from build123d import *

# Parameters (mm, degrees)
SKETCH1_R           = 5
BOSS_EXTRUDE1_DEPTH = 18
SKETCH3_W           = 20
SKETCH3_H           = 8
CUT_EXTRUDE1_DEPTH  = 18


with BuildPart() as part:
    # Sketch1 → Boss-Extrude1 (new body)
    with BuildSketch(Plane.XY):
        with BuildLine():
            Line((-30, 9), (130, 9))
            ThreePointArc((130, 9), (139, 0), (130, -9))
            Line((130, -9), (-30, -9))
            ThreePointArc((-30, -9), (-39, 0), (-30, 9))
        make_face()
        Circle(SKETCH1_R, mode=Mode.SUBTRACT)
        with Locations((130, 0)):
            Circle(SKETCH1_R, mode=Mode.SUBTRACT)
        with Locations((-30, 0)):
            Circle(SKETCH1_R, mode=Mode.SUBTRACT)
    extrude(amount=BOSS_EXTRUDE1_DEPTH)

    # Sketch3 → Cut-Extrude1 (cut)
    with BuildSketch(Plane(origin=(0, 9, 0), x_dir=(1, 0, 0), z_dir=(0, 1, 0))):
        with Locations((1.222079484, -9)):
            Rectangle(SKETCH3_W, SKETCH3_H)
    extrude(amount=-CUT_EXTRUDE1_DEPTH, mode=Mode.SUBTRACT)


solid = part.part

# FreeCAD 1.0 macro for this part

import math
import FreeCAD as App
import Part
import Sketcher
Q = App.Units.Quantity

doc = App.newDocument("Part")
params = doc.addObject("Spreadsheet::Sheet", "Params")
for row, (alias, value) in enumerate([
    ("sketch1_diameter", "10 mm"),
    ("sketch1_radius", "9 mm"),
    ("sketch1_width", "160 mm"),
    ("pad1_length", "18 mm"),
    ("sketch2_width", "20 mm"),
    ("sketch2_height", "8 mm"),
    ("pocket1_length", "18 mm"),
], start=1):
    params.set(f"A{row}", alias)
    params.set(f"B{row}", "=" + value)
    params.setAlias(f"B{row}", alias)

body = doc.addObject("PartDesign::Body", "Body")

sketch1 = body.newObject("Sketcher::SketchObject", "Sketch")
sketch1.AttachmentSupport = (doc.getObject("XY_Plane"), [""])
sketch1.MapMode = "FlatFace"
sketch1.addGeometry([
    Part.LineSegment(App.Vector(130, 9, 0), App.Vector(-30, 9, 0)),
    Part.ArcOfCircle(Part.Circle(App.Vector(-30, 0, 0), App.Vector(0, 0, 1), 9), math.radians(90), math.radians(270)),
    Part.LineSegment(App.Vector(-30, -9, 0), App.Vector(130, -9, 0)),
    Part.ArcOfCircle(Part.Circle(App.Vector(130, 0, 0), App.Vector(0, 0, 1), 9), math.radians(-90), math.radians(90)),
    Part.Circle(App.Vector(130, 0, 0), App.Vector(0, 0, 1), 5),
    Part.Circle(App.Vector(0, 0, 0), App.Vector(0, 0, 1), 5),
    Part.Circle(App.Vector(-30, 0, 0), App.Vector(0, 0, 1), 5),
], False)
sketch1.addConstraint([
    Sketcher.Constraint("Tangent", 0, 2, 1, 1),
    Sketcher.Constraint("Tangent", 1, 2, 2, 1),
    Sketcher.Constraint("Tangent", 2, 2, 3, 1),
    Sketcher.Constraint("Tangent", 3, 2, 0, 1),
    Sketcher.Constraint("Horizontal", 0),
    Sketcher.Constraint("Horizontal", 2),
    Sketcher.Constraint("Coincident", 5, 3, -1, 1),
    Sketcher.Constraint("Coincident", 4, 3, 3, 3),
    Sketcher.Constraint("Coincident", 6, 3, 1, 3),
    Sketcher.Constraint("Equal", 4, 5),
    Sketcher.Constraint("Equal", 5, 6),
    Sketcher.Constraint("PointOnObject", 1, 3, -1),
    Sketcher.Constraint("Diameter", 4, Q("10 mm")),
    Sketcher.Constraint("Radius", 1, Q("9 mm")),
    Sketcher.Constraint("DistanceX", 0, 2, 0, 1, Q("160 mm")),
    Sketcher.Constraint("DistanceX", 1, 3, -1, 1, Q("30 mm")),
])
sketch1.setExpression("Constraints[12]", "Params.sketch1_diameter")
sketch1.setExpression("Constraints[13]", "Params.sketch1_radius")
sketch1.setExpression("Constraints[14]", "Params.sketch1_width")
pad1 = body.newObject("PartDesign::Pad", "Pad")
pad1.Profile = sketch1
pad1.setExpression("Length", "Params.pad1_length")

sketch2 = body.newObject("Sketcher::SketchObject", "Sketch001")
sketch2.AttachmentSupport = (doc.getObject("XZ_Plane"), [""])
sketch2.MapMode = "FlatFace"
sketch2.AttachmentOffset = App.Placement(App.Vector(0, 0, -9), App.Rotation())
sketch2.addGeometry([
    Part.LineSegment(App.Vector(-9, 5, 0), App.Vector(-9, 13, 0)),
    Part.LineSegment(App.Vector(-9, 13, 0), App.Vector(11, 13, 0)),
    Part.LineSegment(App.Vector(11, 13, 0), App.Vector(11, 5, 0)),
    Part.LineSegment(App.Vector(11, 5, 0), App.Vector(-9, 5, 0)),
], False)
sketch2.addConstraint([
    Sketcher.Constraint("Coincident", 0, 2, 1, 1),
    Sketcher.Constraint("Coincident", 1, 2, 2, 1),
    Sketcher.Constraint("Coincident", 2, 2, 3, 1),
    Sketcher.Constraint("Coincident", 3, 2, 0, 1),
    Sketcher.Constraint("Vertical", 0),
    Sketcher.Constraint("Horizontal", 1),
    Sketcher.Constraint("Vertical", 2),
    Sketcher.Constraint("Horizontal", 3),
    Sketcher.Constraint("DistanceX", 1, 1, 1, 2, Q("20 mm")),
    Sketcher.Constraint("DistanceY", 0, 1, 0, 2, Q("8 mm")),
    Sketcher.Constraint("DistanceY", -1, 1, 0, 2, Q("13 mm")),
    Sketcher.Constraint("DistanceX", 0, 2, -1, 1, Q("8.777921 mm")),
])
sketch2.setExpression("Constraints[8]", "Params.sketch2_width")
sketch2.setExpression("Constraints[9]", "Params.sketch2_height")
pocket1 = body.newObject("PartDesign::Pocket", "Pocket")
pocket1.Profile = sketch2
pocket1.setExpression("Length", "Params.pocket1_length")
pocket1.Reversed = True

doc.recompute()
